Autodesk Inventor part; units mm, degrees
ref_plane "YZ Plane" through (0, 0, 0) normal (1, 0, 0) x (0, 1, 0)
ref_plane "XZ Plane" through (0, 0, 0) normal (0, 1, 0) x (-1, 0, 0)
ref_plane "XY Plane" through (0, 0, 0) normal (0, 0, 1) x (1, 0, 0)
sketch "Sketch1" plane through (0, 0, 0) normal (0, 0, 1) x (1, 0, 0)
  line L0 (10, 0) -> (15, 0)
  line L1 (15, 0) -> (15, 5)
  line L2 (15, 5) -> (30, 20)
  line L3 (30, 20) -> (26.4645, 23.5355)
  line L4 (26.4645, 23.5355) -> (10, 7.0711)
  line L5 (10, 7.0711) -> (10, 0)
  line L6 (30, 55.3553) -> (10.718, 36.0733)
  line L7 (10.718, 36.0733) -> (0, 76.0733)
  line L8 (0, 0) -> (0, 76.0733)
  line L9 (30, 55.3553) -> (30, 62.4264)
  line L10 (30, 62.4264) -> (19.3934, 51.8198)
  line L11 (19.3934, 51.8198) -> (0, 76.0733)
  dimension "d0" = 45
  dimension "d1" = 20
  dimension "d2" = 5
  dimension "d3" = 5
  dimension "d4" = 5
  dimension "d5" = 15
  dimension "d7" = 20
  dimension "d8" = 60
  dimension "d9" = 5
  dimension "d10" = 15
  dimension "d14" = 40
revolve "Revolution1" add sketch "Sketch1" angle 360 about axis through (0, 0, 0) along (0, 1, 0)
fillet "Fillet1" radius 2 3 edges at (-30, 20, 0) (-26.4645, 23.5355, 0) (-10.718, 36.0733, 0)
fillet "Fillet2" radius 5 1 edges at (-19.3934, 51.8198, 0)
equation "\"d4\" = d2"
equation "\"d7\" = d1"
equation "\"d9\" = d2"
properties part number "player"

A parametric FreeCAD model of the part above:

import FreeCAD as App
import Part
import Sketcher

V = App.Vector
Q = App.Units.Quantity


def edges_at(feature, points):
    """Names of the edges that pass closest to the given points."""
    edges = feature.Shape.Edges
    near = lambda p: min(range(len(edges)), key=lambda i: edges[i].distToShape(Part.Vertex(*p))[0])
    return sorted({f"Edge{near(p) + 1}" for p in points})


def add_polygon(sketch, points):
    """Adds a closed chain of lines whose ends are joined by coincident constraints."""
    first, n = sketch.GeometryCount, len(points)
    for a, b in zip(points, points[1:] + points[:1]):
        sketch.addGeometry(Part.LineSegment(App.Vector(*a, 0), App.Vector(*b, 0)), False)
    for i in range(n):
        sketch.addConstraint(Sketcher.Constraint("Coincident", first + i, 2, first + (i + 1) % n, 1))

doc = App.newDocument("Part")
params = doc.addObject("Spreadsheet::Sheet", "Params")
for row, (alias, value) in enumerate([
    ("sketch1_width", "5 mm"),
    ("sketch1_length", "5 mm"),
    ("sketch1_length2", "15 mm"),
    ("revolution_angle", "360 deg"),
    ("fillet_radius", "2 mm"),
    ("fillet2_radius", "5 mm"),
], start=1):
    params.set(f"A{row}", alias)
    params.set(f"B{row}", "=" + value)
    params.setAlias(f"B{row}", alias)

body = doc.addObject("PartDesign::Body", "Body")
body.AllowCompound = True

# Sketch on XY plane
sketch1 = body.newObject("Sketcher::SketchObject", "Sketch")
sketch1.AttachmentSupport = (doc.getObject("XY_Plane"), [""])
sketch1.MapMode = "FlatFace"
add_polygon(sketch1, [(10, 7.1), (10, 0), (15, 0), (15, 5), (30, 20), (26.5, 23.5)])  # lines 0-5
add_polygon(sketch1, [(10.7, 36.1), (30, 55.4), (30, 62.4), (19.4, 51.8), (0, 76.1)])  # lines 6-10
sketch1.addConstraint([
    Sketcher.Constraint("Vertical", 0),
    Sketcher.Constraint("Horizontal", 1),
    Sketcher.Constraint("Vertical", 2),
    Sketcher.Constraint("Vertical", 7),
    Sketcher.Constraint("PointOnObject", 0, 2, -1),
    Sketcher.Constraint("PointOnObject", 9, 2, -2),
    Sketcher.Constraint("Perpendicular", 3, 4),
    Sketcher.Constraint("Perpendicular", 4, 5),
    Sketcher.Constraint("Parallel", 5, 6),
    Sketcher.Constraint("Parallel", 6, 8),
    Sketcher.Constraint("Vertical", 3, 2, 6, 2),
    Sketcher.Constraint("Equal", 1, 2),
    Sketcher.Constraint("Equal", 0, 7),
    Sketcher.Constraint("DistanceX", 1, 1, 1, 2, 5.0),
    Sketcher.Constraint("Angle", 3, Q("45 deg")),
    Sketcher.Constraint("Distance", 4, 5.0),
    Sketcher.Constraint("Distance", 8, 15.0),
    Sketcher.Constraint("DistanceX", -1, 1, 1, 2, 15.0),
    Sketcher.Constraint("DistanceY", -1, 1, 3, 2, 20.0),
    Sketcher.Constraint("Angle", 10, Q("-75 deg")),
    Sketcher.Constraint("Distance", 10, 41.411),
    Sketcher.Constraint("DistanceY", 4, 2, 7, 2, 38.891),
])
sketch1.setExpression("Constraints[24]", "Params.sketch1_width")
sketch1.setExpression("Constraints[26]", "Params.sketch1_length")
sketch1.setExpression("Constraints[27]", "Params.sketch1_length2")
revolution = body.newObject("PartDesign::Revolution", "Revolution")
revolution.Profile = sketch1
revolution.ReferenceAxis = (sketch1, ["V_Axis"])
revolution.setExpression("Angle", "Params.revolution_angle")
doc.recompute()

fillet = body.newObject("PartDesign::Fillet", "Fillet")
fillet.Base = (revolution, edges_at(revolution, [(-30, 20, 0), (-26.465, 23.535, 0), (-10.718, 36.073, 0)]))
fillet.setExpression("Radius", "Params.fillet_radius")
doc.recompute()

fillet2 = body.newObject("PartDesign::Fillet", "Fillet001")
fillet2.Base = (fillet, edges_at(fillet, [(-19.393, 51.82, 0)]))
fillet2.setExpression("Radius", "Params.fillet2_radius")

doc.recompute()
